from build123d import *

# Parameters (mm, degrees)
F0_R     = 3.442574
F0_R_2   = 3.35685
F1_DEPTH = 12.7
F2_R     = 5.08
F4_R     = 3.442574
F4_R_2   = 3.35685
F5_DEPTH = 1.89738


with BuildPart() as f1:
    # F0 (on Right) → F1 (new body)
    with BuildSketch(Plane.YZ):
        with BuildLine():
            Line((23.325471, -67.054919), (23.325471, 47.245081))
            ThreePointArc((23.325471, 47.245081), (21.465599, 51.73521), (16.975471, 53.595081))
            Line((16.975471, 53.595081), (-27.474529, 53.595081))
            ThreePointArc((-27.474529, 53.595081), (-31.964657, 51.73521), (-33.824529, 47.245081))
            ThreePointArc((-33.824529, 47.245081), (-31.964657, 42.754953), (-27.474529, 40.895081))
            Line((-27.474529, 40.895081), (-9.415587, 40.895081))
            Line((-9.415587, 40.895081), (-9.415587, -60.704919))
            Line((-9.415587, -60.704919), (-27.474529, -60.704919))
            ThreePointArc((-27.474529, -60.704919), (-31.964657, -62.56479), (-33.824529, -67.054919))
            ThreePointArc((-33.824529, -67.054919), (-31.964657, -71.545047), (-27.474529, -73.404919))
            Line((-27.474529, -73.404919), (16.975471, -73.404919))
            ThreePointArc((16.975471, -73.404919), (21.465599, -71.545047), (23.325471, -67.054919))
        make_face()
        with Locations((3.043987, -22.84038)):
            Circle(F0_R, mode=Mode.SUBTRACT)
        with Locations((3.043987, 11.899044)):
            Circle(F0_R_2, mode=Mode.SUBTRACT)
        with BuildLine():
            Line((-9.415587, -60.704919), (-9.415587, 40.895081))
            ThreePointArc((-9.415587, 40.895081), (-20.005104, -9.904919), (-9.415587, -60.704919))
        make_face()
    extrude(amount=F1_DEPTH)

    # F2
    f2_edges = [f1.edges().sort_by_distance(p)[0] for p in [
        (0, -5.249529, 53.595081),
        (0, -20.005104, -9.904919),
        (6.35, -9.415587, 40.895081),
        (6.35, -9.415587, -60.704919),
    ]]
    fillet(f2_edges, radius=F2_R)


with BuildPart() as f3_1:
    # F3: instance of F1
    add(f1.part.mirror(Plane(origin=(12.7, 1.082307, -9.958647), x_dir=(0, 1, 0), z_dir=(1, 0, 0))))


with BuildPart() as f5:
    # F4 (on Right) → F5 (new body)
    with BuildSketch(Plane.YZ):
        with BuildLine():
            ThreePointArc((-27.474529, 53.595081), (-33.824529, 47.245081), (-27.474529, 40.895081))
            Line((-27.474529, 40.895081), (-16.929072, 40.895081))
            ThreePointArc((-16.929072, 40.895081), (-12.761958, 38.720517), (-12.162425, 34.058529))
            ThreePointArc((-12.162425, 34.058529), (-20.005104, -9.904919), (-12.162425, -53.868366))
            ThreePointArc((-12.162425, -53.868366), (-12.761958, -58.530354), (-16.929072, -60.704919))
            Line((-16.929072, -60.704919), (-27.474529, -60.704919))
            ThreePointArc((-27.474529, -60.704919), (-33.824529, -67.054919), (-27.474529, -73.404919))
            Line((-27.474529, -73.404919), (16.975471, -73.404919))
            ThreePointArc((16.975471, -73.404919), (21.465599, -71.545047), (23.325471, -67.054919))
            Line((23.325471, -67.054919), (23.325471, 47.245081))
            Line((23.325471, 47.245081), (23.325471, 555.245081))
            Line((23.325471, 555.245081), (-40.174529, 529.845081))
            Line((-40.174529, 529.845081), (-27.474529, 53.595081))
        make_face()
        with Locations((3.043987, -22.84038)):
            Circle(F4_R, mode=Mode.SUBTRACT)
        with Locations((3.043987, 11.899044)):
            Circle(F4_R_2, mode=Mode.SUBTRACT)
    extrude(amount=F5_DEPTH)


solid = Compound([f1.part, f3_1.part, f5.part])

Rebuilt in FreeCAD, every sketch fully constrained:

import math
import FreeCAD as App
import Part
import Sketcher
Q = App.Units.Quantity


def edges_at(feature, points):
    """Names of the edges that pass closest to the given points."""
    edges = feature.Shape.Edges
    near = lambda p: min(range(len(edges)), key=lambda i: edges[i].distToShape(Part.Vertex(*p))[0])
    return sorted({f"Edge{near(p) + 1}" for p in points})

doc = App.newDocument("Part")
params = doc.addObject("Spreadsheet::Sheet", "Params")
for row, (alias, value) in enumerate([
    ("sketch1_radius", "0.2499999 in"),
    ("sketch1_height", "4.5 in"),
    ("pad1_length", "0.5 in"),
    ("fillet_radius", "0.2 in"),
    ("sketch2_radius", "0.2 in"),
    ("sketch2_radius2", "0.25 in"),
    ("sketch2_height", "24.5 in"),
    ("pad2_length", "0.0747 in"),
], start=1):
    params.set(f"A{row}", alias)
    params.set(f"B{row}", "=" + value)
    params.setAlias(f"B{row}", alias)

body = doc.addObject("PartDesign::Body", "Body")

# Sketch on YZ plane
sketch1 = body.newObject("Sketcher::SketchObject", "Sketch")
sketch1.AttachmentSupport = (doc.getObject("YZ_Plane"), [""])
sketch1.MapMode = "FlatFace"
sketch1.addGeometry([
    Part.LineSegment(App.Vector(23.3, -67.1, 0), App.Vector(23.3, 47.2, 0)),  # 0
    Part.ArcOfCircle(Part.Circle(App.Vector(17, 47.2, 0), App.Vector(0, 0, 1), 6.3), math.radians(0), math.radians(90)),  # 1
    Part.LineSegment(App.Vector(17, 53.6, 0), App.Vector(-27.5, 53.6, 0)),  # 2
    Part.ArcOfCircle(Part.Circle(App.Vector(-27.5, 47.2, 0), App.Vector(0, 0, 1), 6.3), math.radians(90), math.radians(180)),  # 3
    Part.ArcOfCircle(Part.Circle(App.Vector(-27.5, 47.2, 0), App.Vector(0, 0, 1), 6.4), math.radians(-180), math.radians(-90)),  # 4
    Part.LineSegment(App.Vector(-27.5, 40.9, 0), App.Vector(-9.4, 40.9, 0)),  # 5
    Part.ArcOfCircle(Part.Circle(App.Vector(107.1, -9.9, 0), App.Vector(0, 0, 1), 127.1), math.radians(156), math.radians(204)),  # 6
    Part.LineSegment(App.Vector(-9.4, -60.7, 0), App.Vector(-27.5, -60.7, 0)),  # 7
    Part.ArcOfCircle(Part.Circle(App.Vector(-27.5, -67.1, 0), App.Vector(0, 0, 1), 6.3), math.radians(90), math.radians(180)),  # 8
    Part.ArcOfCircle(Part.Circle(App.Vector(-27.5, -67.1, 0), App.Vector(0, 0, 1), 6.4), math.radians(-180), math.radians(-90)),  # 9
    Part.LineSegment(App.Vector(-27.5, -73.4, 0), App.Vector(17, -73.4, 0)),  # 10
    Part.ArcOfCircle(Part.Circle(App.Vector(17, -67.1, 0), App.Vector(0, 0, 1), 6.4), math.radians(-90), math.radians(0)),  # 11
    Part.Circle(App.Vector(3, -22.8, 0), App.Vector(0, 0, 1), 3.4),  # 12
    Part.Circle(App.Vector(3, 11.9, 0), App.Vector(0, 0, 1), 3.4),  # 13
], False)
sketch1.addConstraint([
    Sketcher.Constraint("Tangent", 0, 2, 1, 1),
    Sketcher.Constraint("Tangent", 1, 2, 2, 1),
    Sketcher.Constraint("Tangent", 2, 2, 3, 1),
    Sketcher.Constraint("Tangent", 3, 2, 4, 1),
    Sketcher.Constraint("Tangent", 4, 2, 5, 1),
    Sketcher.Constraint("Coincident", 5, 2, 6, 1),
    Sketcher.Constraint("Coincident", 6, 2, 7, 1),
    Sketcher.Constraint("Tangent", 7, 2, 8, 1),
    Sketcher.Constraint("Tangent", 8, 2, 9, 1),
    Sketcher.Constraint("Tangent", 9, 2, 10, 1),
    Sketcher.Constraint("Tangent", 10, 2, 11, 1),
    Sketcher.Constraint("Tangent", 11, 2, 0, 1),
    Sketcher.Constraint("Vertical", 0),
    Sketcher.Constraint("Horizontal", 2),
    Sketcher.Constraint("Horizontal", 5),
    Sketcher.Constraint("Horizontal", 7),
    Sketcher.Constraint("Horizontal", 10),
    Sketcher.Constraint("Equal", 1, 3),
    Sketcher.Constraint("Equal", 3, 4),
    Sketcher.Constraint("Equal", 4, 8),
    Sketcher.Constraint("Equal", 8, 9),
    Sketcher.Constraint("Equal", 9, 11),
    Sketcher.Constraint("Horizontal", 0, 2, 3, 2),
    Sketcher.Constraint("Horizontal", 11, 3, 8, 2),
    Sketcher.Constraint("Vertical", 4, 3, 8, 3),
    Sketcher.Constraint("Vertical", 12, 3, 13, 3),
    Sketcher.Constraint("Vertical", 5, 2, 6, 2),
    Sketcher.Constraint("Radius", 1, Q("0.2499999 in")),
    Sketcher.Constraint("DistanceY", 0, 1, 0, 2, Q("4.5 in")),
    Sketcher.Constraint("DistanceX", 4, 3, 0, 2, Q("2 in")),
    Sketcher.Constraint("Diameter", 13, 6.7137),
    Sketcher.Constraint("Diameter", 12, 6.885148),
    Sketcher.Constraint("Radius", 6, 127.143564),
    Sketcher.Constraint("DistanceX", 5, 1, 5, 2, 18.058942),
    Sketcher.Constraint("DistanceX", 3, 3, -1, 1, 27.474531),
    Sketcher.Constraint("DistanceY", -1, 1, 4, 3, 47.245081),
    Sketcher.Constraint("DistanceY", 12, 3, -1, 1, 22.84038),
    Sketcher.Constraint("DistanceY", 13, 3, 1, 3, 35.346039),
    Sketcher.Constraint("DistanceX", -1, 1, 12, 3, 3.043987),
])
sketch1.setExpression("Constraints[27]", "Params.sketch1_radius")
sketch1.setExpression("Constraints[28]", "Params.sketch1_height")
pad1 = body.newObject("PartDesign::Pad", "Pad")
pad1.Profile = sketch1
pad1.setExpression("Length", "Params.pad1_length")
doc.recompute()

fillet = body.newObject("PartDesign::Fillet", "Fillet")
fillet.Base = (pad1, edges_at(pad1, [
    (0, -5.25, 53.595),
    (0, -20.005, -9.905),
    (6.35, -9.416, 40.895),
    (6.35, -9.416, -60.705),
]))
fillet.setExpression("Radius", "Params.fillet_radius")
body2 = doc.addObject("PartDesign::Body", "Body001")
doc.recompute()

mirroring = doc.addObject("Part::Mirroring", "Mirroring")
mirroring.Source = body
mirroring.Base = App.Vector(12.7, 1.082307, -9.958647)
mirroring.Normal = App.Vector(1, 0, 0)
body2.BaseFeature = mirroring
doc.recompute()
body3 = doc.addObject("PartDesign::Body", "Body002")

# Sketch on YZ plane
sketch2 = body3.newObject("Sketcher::SketchObject", "Sketch001")
sketch2.AttachmentSupport = (doc.getObject("YZ_Plane002"), [""])
sketch2.MapMode = "FlatFace"
sketch2.addGeometry([
    Part.ArcOfCircle(Part.Circle(App.Vector(-27.5, 47.2, 0), App.Vector(0, 0, 1), 6.3), math.radians(90), math.radians(270)),  # 0
    Part.LineSegment(App.Vector(-27.5, 40.9, 0), App.Vector(-16.9, 40.9, 0)),  # 1
    Part.ArcOfCircle(Part.Circle(App.Vector(-16.9, 35.8, 0), App.Vector(0, 0, 1), 5.1), math.radians(-20), math.radians(90)),  # 2
    Part.ArcOfCircle(Part.Circle(App.Vector(107.1, -9.9, 0), App.Vector(0, 0, 1), 127.1), math.radians(160), math.radians(200)),  # 3
    Part.ArcOfCircle(Part.Circle(App.Vector(-16.9, -55.6, 0), App.Vector(0, 0, 1), 5.1), math.radians(-90), math.radians(20)),  # 4
    Part.LineSegment(App.Vector(-16.9, -60.7, 0), App.Vector(-27.5, -60.7, 0)),  # 5
    Part.ArcOfCircle(Part.Circle(App.Vector(-27.5, -67.1, 0), App.Vector(0, 0, 1), 6.3), math.radians(90), math.radians(270)),  # 6
    Part.LineSegment(App.Vector(-27.5, -73.4, 0), App.Vector(17, -73.4, 0)),  # 7
    Part.ArcOfCircle(Part.Circle(App.Vector(17, -67.1, 0), App.Vector(0, 0, 1), 6.4), math.radians(-90), math.radians(0)),  # 8
    Part.LineSegment(App.Vector(23.3, -67.1, 0), App.Vector(23.3, 555.2, 0)),  # 9
    Part.LineSegment(App.Vector(23.3, 555.2, 0), App.Vector(-40.2, 529.8, 0)),  # 10
    Part.LineSegment(App.Vector(-40.2, 529.8, 0), App.Vector(-27.5, 53.6, 0)),  # 11
    Part.Circle(App.Vector(3, -22.8, 0), App.Vector(0, 0, 1), 3.4),  # 12
    Part.Circle(App.Vector(3, 11.9, 0), App.Vector(0, 0, 1), 3.4),  # 13
], False)
sketch2.addConstraint([
    Sketcher.Constraint("Tangent", 0, 2, 1, 1),
    Sketcher.Constraint("Tangent", 1, 2, 2, 2),
    Sketcher.Constraint("Tangent", 2, 1, 3, 1),
    Sketcher.Constraint("Tangent", 3, 2, 4, 2),
    Sketcher.Constraint("Tangent", 4, 1, 5, 1),
    Sketcher.Constraint("Tangent", 5, 2, 6, 1),
    Sketcher.Constraint("Tangent", 6, 2, 7, 1),
    Sketcher.Constraint("Tangent", 7, 2, 8, 1),
    Sketcher.Constraint("Tangent", 8, 2, 9, 1),
    Sketcher.Constraint("Coincident", 9, 2, 10, 1),
    Sketcher.Constraint("Coincident", 10, 2, 11, 1),
    Sketcher.Constraint("Coincident", 11, 2, 0, 1),
    Sketcher.Constraint("Horizontal", 1),
    Sketcher.Constraint("Horizontal", 5),
    Sketcher.Constraint("Horizontal", 7),
    Sketcher.Constraint("Vertical", 9),
    Sketcher.Constraint("Equal", 2, 4),
    Sketcher.Constraint("Equal", 0, 6),
    Sketcher.Constraint("Equal", 6, 8),
    Sketcher.Constraint("Vertical", 2, 3, 4, 3),
    Sketcher.Constraint("Vertical", 0, 3, 6, 3),
    Sketcher.Constraint("Vertical", 12, 3, 13, 3),
    Sketcher.Constraint("Vertical", 6, 2, 11, 2),
    Sketcher.Constraint("Radius", 2, Q("0.2 in")),
    Sketcher.Constraint("Radius", 0, Q("0.25 in")),
    Sketcher.Constraint("DistanceY", 9, 1, 9, 2, Q("24.5 in")),
    Sketcher.Constraint("DistanceX", 0, 3, 9, 2, Q("2 in")),
    Sketcher.Constraint("DistanceY", 0, 3, 9, 2, Q("20 in")),
    Sketcher.Constraint("DistanceY", 10, 2, 9, 2, Q("1 in")),
    Sketcher.Constraint("DistanceX", 10, 2, 9, 2, Q("2.5 in")),
    Sketcher.Constraint("Diameter", 13, 6.7137),
    Sketcher.Constraint("Diameter", 12, 6.885148),
    Sketcher.Constraint("Radius", 3, 127.143565),
    Sketcher.Constraint("DistanceX", 1, 1, 1, 2, 10.545457),
    Sketcher.Constraint("DistanceX", 0, 3, -1, 1, 27.474529),
    Sketcher.Constraint("DistanceY", -1, 1, 0, 3, 47.245081),
    Sketcher.Constraint("DistanceY", 12, 3, -1, 1, 22.84038),
    Sketcher.Constraint("DistanceX", 4, 3, 12, 3, 19.973061),
    Sketcher.Constraint("DistanceY", 4, 3, 13, 3, 67.523962),
])
sketch2.setExpression("Constraints[23]", "Params.sketch2_radius")
sketch2.setExpression("Constraints[24]", "Params.sketch2_radius2")
sketch2.setExpression("Constraints[25]", "Params.sketch2_height")
pad2 = body3.newObject("PartDesign::Pad", "Pad001")
pad2.Profile = sketch2
pad2.setExpression("Length", "Params.pad2_length")
mirroring.Visibility = False

doc.recompute()
